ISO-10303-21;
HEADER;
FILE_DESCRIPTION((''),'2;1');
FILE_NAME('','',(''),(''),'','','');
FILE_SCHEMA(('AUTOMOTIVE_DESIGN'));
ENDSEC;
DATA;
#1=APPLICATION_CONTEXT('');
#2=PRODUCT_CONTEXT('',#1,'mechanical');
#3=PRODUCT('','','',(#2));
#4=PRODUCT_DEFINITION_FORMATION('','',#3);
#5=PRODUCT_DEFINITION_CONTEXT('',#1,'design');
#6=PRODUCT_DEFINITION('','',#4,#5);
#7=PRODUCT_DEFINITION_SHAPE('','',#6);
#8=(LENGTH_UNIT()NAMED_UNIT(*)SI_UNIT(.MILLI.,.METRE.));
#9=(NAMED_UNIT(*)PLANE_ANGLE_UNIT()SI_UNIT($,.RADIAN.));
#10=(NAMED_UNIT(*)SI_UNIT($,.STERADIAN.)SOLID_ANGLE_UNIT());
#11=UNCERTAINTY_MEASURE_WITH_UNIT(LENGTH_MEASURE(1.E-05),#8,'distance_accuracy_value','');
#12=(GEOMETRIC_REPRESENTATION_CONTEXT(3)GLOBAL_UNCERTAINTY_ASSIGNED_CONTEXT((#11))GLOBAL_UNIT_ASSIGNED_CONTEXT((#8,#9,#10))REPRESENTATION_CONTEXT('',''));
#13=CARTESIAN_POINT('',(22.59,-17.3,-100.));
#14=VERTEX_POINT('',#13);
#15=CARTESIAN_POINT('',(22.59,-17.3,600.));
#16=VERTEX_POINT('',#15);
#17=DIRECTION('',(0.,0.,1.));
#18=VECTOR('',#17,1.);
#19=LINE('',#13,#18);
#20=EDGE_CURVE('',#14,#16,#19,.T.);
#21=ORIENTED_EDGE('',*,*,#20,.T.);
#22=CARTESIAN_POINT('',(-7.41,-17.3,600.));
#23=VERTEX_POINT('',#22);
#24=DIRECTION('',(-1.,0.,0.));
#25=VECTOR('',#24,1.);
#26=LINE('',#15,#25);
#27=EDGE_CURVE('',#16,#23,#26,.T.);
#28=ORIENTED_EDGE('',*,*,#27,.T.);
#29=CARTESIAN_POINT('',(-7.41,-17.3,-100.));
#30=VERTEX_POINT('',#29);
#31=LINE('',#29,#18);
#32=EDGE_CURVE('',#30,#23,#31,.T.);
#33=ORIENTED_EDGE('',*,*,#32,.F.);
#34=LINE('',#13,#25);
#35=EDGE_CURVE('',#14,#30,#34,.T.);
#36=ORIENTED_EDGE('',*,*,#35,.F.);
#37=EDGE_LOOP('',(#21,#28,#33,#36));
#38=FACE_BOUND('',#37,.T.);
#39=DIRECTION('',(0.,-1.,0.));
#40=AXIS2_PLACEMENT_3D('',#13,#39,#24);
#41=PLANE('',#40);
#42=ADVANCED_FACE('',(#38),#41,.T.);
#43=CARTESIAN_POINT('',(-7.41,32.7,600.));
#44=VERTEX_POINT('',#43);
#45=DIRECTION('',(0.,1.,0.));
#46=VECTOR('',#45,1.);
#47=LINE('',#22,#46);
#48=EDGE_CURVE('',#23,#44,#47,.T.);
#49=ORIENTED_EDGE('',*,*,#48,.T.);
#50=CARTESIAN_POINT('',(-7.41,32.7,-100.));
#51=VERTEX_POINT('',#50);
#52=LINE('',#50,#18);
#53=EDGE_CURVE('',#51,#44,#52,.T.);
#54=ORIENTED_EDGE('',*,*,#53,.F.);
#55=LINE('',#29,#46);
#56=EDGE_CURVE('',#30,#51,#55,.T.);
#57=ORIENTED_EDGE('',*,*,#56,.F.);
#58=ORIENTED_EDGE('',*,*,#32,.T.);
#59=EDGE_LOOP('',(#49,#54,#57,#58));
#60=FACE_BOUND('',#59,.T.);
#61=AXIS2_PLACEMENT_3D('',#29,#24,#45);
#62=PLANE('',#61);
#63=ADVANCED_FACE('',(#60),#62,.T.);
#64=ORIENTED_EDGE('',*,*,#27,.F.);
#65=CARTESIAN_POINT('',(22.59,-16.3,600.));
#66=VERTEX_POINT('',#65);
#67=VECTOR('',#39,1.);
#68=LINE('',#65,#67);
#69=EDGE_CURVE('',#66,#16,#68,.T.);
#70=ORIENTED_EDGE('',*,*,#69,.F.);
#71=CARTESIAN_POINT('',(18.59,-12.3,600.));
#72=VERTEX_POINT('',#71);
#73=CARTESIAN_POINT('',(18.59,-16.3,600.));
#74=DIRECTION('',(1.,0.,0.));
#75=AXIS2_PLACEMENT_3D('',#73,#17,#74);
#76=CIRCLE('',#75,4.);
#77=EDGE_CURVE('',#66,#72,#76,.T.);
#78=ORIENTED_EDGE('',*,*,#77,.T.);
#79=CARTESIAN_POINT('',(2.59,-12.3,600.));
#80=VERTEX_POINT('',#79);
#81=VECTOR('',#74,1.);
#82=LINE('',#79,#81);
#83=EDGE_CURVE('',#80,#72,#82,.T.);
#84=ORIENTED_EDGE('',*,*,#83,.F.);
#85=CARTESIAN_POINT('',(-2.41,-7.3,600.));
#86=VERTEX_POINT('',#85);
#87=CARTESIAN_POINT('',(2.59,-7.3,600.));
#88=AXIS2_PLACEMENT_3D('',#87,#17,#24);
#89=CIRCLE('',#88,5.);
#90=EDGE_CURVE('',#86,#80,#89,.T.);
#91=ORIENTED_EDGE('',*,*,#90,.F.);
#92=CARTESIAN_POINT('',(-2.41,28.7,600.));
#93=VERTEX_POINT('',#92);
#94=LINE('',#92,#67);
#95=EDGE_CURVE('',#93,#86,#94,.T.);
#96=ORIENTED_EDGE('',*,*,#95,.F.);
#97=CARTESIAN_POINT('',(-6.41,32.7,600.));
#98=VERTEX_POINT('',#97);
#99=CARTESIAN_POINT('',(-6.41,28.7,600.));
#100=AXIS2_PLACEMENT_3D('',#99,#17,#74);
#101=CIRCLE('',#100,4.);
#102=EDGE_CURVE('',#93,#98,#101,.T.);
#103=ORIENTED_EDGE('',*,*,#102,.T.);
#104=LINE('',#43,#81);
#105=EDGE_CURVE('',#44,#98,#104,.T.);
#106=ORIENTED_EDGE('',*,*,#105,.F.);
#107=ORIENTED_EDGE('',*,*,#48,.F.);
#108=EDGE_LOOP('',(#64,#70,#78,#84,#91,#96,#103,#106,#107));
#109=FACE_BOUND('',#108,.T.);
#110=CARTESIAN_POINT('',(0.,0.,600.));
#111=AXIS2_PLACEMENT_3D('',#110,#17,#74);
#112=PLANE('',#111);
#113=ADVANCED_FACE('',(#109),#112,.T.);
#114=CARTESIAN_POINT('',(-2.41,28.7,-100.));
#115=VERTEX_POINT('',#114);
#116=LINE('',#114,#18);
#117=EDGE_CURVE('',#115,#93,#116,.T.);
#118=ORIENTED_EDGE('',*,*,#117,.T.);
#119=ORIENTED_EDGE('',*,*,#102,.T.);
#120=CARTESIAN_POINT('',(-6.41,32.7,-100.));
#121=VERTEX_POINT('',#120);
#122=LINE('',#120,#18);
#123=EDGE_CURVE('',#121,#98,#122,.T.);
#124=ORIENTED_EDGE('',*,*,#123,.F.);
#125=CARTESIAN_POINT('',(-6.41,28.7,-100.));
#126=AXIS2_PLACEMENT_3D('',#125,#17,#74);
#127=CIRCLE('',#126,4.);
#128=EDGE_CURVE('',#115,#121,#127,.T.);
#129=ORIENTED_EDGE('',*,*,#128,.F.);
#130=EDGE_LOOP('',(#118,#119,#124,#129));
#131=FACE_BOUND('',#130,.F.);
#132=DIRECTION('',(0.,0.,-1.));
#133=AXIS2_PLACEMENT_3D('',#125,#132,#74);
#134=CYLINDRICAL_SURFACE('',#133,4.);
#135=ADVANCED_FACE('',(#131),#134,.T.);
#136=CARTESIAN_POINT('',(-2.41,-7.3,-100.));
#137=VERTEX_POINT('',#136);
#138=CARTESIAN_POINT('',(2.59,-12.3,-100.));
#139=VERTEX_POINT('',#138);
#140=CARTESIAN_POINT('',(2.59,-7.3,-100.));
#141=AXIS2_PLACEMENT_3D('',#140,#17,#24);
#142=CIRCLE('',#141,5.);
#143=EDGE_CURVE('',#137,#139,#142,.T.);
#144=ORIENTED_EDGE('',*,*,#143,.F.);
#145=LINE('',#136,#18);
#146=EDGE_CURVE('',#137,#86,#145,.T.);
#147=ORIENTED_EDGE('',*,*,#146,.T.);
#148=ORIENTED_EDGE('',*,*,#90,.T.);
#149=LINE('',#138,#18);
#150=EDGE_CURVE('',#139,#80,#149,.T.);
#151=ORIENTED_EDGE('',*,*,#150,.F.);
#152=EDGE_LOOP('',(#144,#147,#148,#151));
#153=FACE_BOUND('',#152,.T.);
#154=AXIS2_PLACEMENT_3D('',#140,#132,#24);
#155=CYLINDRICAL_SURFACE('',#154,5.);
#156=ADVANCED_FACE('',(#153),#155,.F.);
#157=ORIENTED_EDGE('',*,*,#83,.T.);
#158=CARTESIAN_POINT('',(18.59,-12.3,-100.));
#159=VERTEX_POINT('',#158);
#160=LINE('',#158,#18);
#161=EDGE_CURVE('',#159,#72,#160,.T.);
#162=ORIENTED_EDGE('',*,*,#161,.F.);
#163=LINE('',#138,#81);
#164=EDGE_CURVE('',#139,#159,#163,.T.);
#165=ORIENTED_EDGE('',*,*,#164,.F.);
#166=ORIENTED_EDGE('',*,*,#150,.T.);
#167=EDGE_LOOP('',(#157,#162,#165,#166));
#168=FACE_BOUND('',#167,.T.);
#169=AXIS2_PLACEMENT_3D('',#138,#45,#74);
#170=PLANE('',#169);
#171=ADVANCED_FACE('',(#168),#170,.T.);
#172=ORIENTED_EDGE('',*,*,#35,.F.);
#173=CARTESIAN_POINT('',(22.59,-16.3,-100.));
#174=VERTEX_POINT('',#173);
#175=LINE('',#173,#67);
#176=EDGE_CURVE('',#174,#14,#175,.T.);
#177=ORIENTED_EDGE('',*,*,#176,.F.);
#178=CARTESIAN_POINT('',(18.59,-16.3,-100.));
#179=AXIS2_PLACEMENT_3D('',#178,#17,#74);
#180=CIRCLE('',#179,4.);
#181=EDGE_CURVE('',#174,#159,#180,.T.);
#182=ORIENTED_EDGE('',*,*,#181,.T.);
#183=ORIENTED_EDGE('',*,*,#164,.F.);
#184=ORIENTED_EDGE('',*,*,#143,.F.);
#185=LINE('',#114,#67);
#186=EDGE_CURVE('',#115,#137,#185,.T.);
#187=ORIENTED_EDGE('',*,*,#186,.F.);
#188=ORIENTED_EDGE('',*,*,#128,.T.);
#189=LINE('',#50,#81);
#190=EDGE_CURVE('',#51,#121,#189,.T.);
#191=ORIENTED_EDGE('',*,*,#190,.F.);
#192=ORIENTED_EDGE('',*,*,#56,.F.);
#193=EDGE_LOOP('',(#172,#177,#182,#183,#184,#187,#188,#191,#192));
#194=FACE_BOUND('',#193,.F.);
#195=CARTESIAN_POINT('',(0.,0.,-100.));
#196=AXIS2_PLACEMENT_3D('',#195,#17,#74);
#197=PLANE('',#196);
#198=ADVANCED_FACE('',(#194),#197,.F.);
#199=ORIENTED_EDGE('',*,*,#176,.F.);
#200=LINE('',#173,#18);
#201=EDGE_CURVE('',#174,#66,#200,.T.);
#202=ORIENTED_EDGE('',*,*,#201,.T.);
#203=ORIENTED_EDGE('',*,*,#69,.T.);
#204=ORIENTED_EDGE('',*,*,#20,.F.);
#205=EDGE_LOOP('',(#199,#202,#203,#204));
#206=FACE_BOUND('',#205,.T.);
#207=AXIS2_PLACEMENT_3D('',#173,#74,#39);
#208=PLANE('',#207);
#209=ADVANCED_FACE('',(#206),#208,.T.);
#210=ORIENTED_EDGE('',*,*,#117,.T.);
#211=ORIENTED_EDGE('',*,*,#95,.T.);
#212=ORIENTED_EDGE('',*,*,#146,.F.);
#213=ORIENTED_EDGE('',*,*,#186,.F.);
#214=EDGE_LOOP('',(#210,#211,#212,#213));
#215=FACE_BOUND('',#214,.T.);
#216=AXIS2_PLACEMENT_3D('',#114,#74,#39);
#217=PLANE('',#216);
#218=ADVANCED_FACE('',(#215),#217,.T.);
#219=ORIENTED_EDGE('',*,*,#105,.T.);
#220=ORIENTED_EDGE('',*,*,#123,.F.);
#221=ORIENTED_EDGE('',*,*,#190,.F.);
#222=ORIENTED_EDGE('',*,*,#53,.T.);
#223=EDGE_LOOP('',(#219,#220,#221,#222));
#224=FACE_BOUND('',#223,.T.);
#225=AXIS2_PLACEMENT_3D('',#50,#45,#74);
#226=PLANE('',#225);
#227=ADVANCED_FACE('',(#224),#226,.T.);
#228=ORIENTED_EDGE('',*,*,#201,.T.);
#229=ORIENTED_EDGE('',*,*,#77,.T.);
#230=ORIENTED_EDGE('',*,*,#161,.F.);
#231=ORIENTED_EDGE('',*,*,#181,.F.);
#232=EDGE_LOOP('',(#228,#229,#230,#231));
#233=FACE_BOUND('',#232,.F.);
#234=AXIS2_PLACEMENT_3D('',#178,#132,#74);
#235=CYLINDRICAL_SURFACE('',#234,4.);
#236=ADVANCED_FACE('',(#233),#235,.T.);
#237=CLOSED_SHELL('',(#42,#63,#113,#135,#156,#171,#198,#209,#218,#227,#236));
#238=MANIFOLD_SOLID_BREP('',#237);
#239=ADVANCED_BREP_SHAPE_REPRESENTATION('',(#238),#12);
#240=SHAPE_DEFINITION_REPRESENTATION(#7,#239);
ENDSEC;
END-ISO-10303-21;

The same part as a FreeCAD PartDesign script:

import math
import FreeCAD as App
import Part
import Sketcher

doc = App.newDocument("Part")
body = doc.addObject("PartDesign::Body", "Body")

sketch1 = body.newObject("Sketcher::SketchObject", "Sketch")
sketch1.AttachmentSupport = (doc.getObject("XY_Plane"), [""])
sketch1.MapMode = "FlatFace"
sketch1.AttachmentOffset = App.Placement(App.Vector(0, 0, -100), App.Rotation())
sketch1.addGeometry([
    Part.LineSegment(App.Vector(-2.4, -7.3, 0), App.Vector(-2.4, 28.7, 0)),
    Part.ArcOfCircle(Part.Circle(App.Vector(-6.4, 28.7, 0), App.Vector(0, 0, 1), 4), math.radians(0), math.radians(90)),
    Part.LineSegment(App.Vector(-6.4, 32.7, 0), App.Vector(-7.4, 32.7, 0)),
    Part.LineSegment(App.Vector(-7.4, 32.7, 0), App.Vector(-7.4, -17.3, 0)),
    Part.LineSegment(App.Vector(-7.4, -17.3, 0), App.Vector(22.6, -17.3, 0)),
    Part.LineSegment(App.Vector(22.6, -17.3, 0), App.Vector(22.6, -16.3, 0)),
    Part.ArcOfCircle(Part.Circle(App.Vector(18.6, -16.3, 0), App.Vector(0, 0, 1), 4), math.radians(0), math.radians(90)),
    Part.LineSegment(App.Vector(18.6, -12.3, 0), App.Vector(2.6, -12.3, 0)),
    Part.ArcOfCircle(Part.Circle(App.Vector(2.6, -7.3, 0), App.Vector(0, 0, 1), 5), math.radians(180), math.radians(270)),
], False)
sketch1.addConstraint([
    Sketcher.Constraint("Tangent", 0, 2, 1, 1),
    Sketcher.Constraint("Tangent", 1, 2, 2, 1),
    Sketcher.Constraint("Coincident", 2, 2, 3, 1),
    Sketcher.Constraint("Coincident", 3, 2, 4, 1),
    Sketcher.Constraint("Coincident", 4, 2, 5, 1),
    Sketcher.Constraint("Tangent", 5, 2, 6, 1),
    Sketcher.Constraint("Tangent", 6, 2, 7, 1),
    Sketcher.Constraint("Tangent", 7, 2, 8, 2),
    Sketcher.Constraint("Tangent", 8, 1, 0, 1),
    Sketcher.Constraint("Vertical", 0),
    Sketcher.Constraint("Horizontal", 2),
    Sketcher.Constraint("Vertical", 3),
    Sketcher.Constraint("Horizontal", 4),
    Sketcher.Constraint("Vertical", 5),
    Sketcher.Constraint("Horizontal", 7),
    Sketcher.Constraint("Equal", 1, 6),
    Sketcher.Constraint("Equal", 2, 5),
    Sketcher.Constraint("Radius", 1, 4.0),
    Sketcher.Constraint("Radius", 8, 5.0),
    Sketcher.Constraint("DistanceX", 4, 1, 4, 2, 30.0),
    Sketcher.Constraint("DistanceY", 3, 2, 3, 1, 50.0),
    Sketcher.Constraint("DistanceX", 2, 2, 0, 2, 5.0),
    Sketcher.Constraint("DistanceY", 3, 2, -1, 1, 17.3),
    Sketcher.Constraint("DistanceX", 2, 2, -1, 1, 7.41),
])
pad1 = body.newObject("PartDesign::Pad", "Pad")
pad1.Profile = sketch1
pad1.Length = 700

doc.recompute()
